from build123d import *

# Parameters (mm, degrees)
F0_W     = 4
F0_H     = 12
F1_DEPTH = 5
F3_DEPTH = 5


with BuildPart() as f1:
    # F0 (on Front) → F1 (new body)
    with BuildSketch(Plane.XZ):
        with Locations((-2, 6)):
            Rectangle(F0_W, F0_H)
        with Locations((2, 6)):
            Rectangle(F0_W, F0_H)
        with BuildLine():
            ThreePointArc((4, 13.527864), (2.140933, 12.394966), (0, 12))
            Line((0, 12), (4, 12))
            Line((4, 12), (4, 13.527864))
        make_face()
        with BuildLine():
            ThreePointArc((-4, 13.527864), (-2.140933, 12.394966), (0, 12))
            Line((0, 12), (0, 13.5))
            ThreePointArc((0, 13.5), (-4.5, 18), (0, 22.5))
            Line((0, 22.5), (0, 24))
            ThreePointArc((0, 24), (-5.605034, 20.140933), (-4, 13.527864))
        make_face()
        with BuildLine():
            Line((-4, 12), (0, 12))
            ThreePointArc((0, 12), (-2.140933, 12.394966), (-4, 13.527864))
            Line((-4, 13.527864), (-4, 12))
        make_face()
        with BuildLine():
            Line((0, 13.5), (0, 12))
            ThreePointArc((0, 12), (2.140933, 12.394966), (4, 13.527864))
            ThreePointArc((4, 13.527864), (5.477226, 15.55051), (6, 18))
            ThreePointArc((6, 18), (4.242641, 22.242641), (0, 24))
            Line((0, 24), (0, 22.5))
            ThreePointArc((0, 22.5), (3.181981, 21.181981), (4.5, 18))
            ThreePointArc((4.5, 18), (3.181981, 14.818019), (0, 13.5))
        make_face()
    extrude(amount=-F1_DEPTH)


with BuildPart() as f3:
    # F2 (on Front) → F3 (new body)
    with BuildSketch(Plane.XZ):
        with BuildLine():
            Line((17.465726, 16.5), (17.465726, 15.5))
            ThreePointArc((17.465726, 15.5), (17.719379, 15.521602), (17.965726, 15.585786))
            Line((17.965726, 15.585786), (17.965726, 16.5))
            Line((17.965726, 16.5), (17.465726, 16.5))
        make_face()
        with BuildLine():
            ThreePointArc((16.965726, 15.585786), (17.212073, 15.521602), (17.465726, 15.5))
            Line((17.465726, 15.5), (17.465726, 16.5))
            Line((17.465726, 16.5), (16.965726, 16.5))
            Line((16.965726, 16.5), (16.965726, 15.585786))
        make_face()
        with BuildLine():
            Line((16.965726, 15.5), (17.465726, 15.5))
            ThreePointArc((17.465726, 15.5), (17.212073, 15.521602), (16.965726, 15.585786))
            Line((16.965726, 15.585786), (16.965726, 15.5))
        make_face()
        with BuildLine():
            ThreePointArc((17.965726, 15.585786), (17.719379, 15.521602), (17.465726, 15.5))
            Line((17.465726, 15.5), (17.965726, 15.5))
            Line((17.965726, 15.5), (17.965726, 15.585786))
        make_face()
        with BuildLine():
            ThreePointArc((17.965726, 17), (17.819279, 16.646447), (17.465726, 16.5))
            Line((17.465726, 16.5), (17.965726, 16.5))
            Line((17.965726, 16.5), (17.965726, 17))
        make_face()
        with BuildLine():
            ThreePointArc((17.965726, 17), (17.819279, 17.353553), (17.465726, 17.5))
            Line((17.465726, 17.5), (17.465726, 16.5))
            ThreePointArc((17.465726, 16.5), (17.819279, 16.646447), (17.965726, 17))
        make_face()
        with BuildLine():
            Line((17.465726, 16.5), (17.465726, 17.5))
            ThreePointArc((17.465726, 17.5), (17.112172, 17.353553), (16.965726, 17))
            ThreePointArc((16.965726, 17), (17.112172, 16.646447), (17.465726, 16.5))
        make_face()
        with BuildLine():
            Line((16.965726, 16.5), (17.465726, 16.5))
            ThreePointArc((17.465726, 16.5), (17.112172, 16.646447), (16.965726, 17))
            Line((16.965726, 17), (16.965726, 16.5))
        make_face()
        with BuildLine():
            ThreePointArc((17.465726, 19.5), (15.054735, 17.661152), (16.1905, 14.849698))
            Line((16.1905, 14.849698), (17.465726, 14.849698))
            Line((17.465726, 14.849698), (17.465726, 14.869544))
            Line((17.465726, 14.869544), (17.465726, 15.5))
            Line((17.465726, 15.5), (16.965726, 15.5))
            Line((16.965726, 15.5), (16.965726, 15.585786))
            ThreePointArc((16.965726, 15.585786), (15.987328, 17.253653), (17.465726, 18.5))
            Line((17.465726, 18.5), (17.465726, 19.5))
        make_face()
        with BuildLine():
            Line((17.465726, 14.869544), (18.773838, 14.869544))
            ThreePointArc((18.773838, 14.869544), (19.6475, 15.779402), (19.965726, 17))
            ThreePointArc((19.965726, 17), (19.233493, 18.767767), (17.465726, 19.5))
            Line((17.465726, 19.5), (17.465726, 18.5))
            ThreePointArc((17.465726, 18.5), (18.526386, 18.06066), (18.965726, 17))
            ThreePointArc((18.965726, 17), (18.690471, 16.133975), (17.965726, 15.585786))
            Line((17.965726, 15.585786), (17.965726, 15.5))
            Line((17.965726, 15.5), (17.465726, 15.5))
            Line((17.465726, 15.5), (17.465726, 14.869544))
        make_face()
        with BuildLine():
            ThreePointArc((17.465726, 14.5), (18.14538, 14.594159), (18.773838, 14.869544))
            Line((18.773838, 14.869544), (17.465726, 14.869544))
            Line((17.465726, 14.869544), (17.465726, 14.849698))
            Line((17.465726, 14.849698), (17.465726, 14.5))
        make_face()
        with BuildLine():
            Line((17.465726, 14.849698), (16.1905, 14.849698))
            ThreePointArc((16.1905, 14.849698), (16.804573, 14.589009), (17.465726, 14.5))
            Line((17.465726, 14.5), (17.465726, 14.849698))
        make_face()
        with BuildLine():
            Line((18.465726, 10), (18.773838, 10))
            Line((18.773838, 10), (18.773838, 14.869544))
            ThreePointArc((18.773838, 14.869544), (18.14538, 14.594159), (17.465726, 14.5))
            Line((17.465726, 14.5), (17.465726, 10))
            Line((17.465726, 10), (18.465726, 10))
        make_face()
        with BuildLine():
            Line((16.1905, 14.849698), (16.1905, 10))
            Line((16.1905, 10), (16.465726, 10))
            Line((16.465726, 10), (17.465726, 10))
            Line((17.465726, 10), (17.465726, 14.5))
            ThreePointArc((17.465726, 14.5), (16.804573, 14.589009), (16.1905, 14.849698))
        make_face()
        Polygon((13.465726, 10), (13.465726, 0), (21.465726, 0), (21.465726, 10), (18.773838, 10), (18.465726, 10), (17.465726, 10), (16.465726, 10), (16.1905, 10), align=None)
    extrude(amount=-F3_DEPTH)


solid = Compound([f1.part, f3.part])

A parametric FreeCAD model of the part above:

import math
import FreeCAD as App
import Part
import Sketcher

V = App.Vector

doc = App.newDocument("Part")
body = doc.addObject("PartDesign::Body", "Body")

sketch1 = body.newObject("Sketcher::SketchObject", "Sketch")
sketch1.AttachmentSupport = (doc.getObject("XZ_Plane"), [""])
sketch1.MapMode = "FlatFace"
sketch1.addGeometry(Part.LineSegment(V(-4, 0, 0), V(4, 0, 0)), False)
sketch1.addGeometry(Part.LineSegment(V(4, 0, 0), V(4, 13.5, 0)), False)
sketch1.addGeometry(Part.ArcOfCircle(Part.Circle(V(0, 18, 0), V(0, 0, 1), 6), math.radians(-48), math.radians(0)), False)
sketch1.addGeometry(Part.ArcOfCircle(Part.Circle(V(0, 18, 0), V(0, 0, 1), 6), math.radians(0), math.radians(90)), False)
sketch1.addGeometry(Part.ArcOfCircle(Part.Circle(V(0, 18, 0), V(0, 0, 1), 6), math.radians(90), math.radians(228)), False)
sketch1.addGeometry(Part.LineSegment(V(-4, 13.5, 0), V(-4, 0, 0)), False)
sketch1.addGeometry(Part.ArcOfCircle(Part.Circle(V(0, 18, 0), V(0, 0, 1), 4.5), math.radians(90), math.radians(270)), False)
sketch1.addGeometry(Part.ArcOfCircle(Part.Circle(V(0, 18, 0), V(0, 0, 1), 4.5), math.radians(0), math.radians(90)), False)
sketch1.addGeometry(Part.ArcOfCircle(Part.Circle(V(0, 18, 0), V(0, 0, 1), 4.5), math.radians(-90), math.radians(0)), False)
sketch1.addConstraint(Sketcher.Constraint("Coincident", 0, 2, 1, 1))
sketch1.addConstraint(Sketcher.Constraint("Coincident", 1, 2, 2, 1))
sketch1.addConstraint(Sketcher.Constraint("Tangent", 2, 2, 3, 1))
sketch1.addConstraint(Sketcher.Constraint("Tangent", 3, 2, 4, 1))
sketch1.addConstraint(Sketcher.Constraint("Coincident", 4, 2, 5, 1))
sketch1.addConstraint(Sketcher.Constraint("Coincident", 5, 2, 0, 1))
sketch1.addConstraint(Sketcher.Constraint("Tangent", 6, 1, 7, 2))
sketch1.addConstraint(Sketcher.Constraint("Tangent", 7, 1, 8, 2))
sketch1.addConstraint(Sketcher.Constraint("Tangent", 8, 1, 6, 2))
sketch1.addConstraint(Sketcher.Constraint("Horizontal", 0))
sketch1.addConstraint(Sketcher.Constraint("Vertical", 1))
sketch1.addConstraint(Sketcher.Constraint("Vertical", 5))
sketch1.addConstraint(Sketcher.Constraint("Coincident", 4, 3, 2, 3))
sketch1.addConstraint(Sketcher.Constraint("Coincident", 6, 3, 2, 3))
sketch1.addConstraint(Sketcher.Constraint("Symmetric", 0, 2, 5, 2, -1, 1))
sketch1.addConstraint(Sketcher.Constraint("PointOnObject", 3, 3, -2))
sketch1.addConstraint(Sketcher.Constraint("PointOnObject", 3, 2, -2))
sketch1.addConstraint(Sketcher.Constraint("PointOnObject", 6, 1, -2))
sketch1.addConstraint(Sketcher.Constraint("PointOnObject", 8, 1, -2))
sketch1.addConstraint(Sketcher.Constraint("Horizontal", 8, 3, 2, 2))
sketch1.addConstraint(Sketcher.Constraint("Horizontal", 2, 2, 7, 1))
sketch1.addConstraint(Sketcher.Constraint("Radius", 3, 5.999999))
sketch1.addConstraint(Sketcher.Constraint("Radius", 6, 4.5))
sketch1.addConstraint(Sketcher.Constraint("DistanceX", 0, 1, 0, 2, 8.0))
sketch1.addConstraint(Sketcher.Constraint("DistanceY", -1, 1, 3, 3, 18.000001))
pad1 = body.newObject("PartDesign::Pad", "Pad")
pad1.Profile = sketch1
pad1.Length = 5
pad1.Reversed = True
body2 = doc.addObject("PartDesign::Body", "Body001")

sketch2 = body2.newObject("Sketcher::SketchObject", "Sketch001")
sketch2.AttachmentSupport = (doc.getObject("XZ_Plane001"), [""])
sketch2.MapMode = "FlatFace"
sketch2.addGeometry(Part.ArcOfCircle(Part.Circle(V(17.47, 17, 0), V(0, 0, 1), 2.5), math.radians(90), math.radians(239)), False)
sketch2.addGeometry(Part.LineSegment(V(16.19, 14.85, 0), V(16.19, 10, 0)), False)
sketch2.addGeometry(Part.LineSegment(V(16.19, 10, 0), V(13.47, 10, 0)), False)
sketch2.addGeometry(Part.LineSegment(V(13.47, 10, 0), V(13.47, 0, 0)), False)
sketch2.addGeometry(Part.LineSegment(V(13.47, 0, 0), V(21.47, 0, 0)), False)
sketch2.addGeometry(Part.LineSegment(V(21.47, 0, 0), V(21.47, 10, 0)), False)
sketch2.addGeometry(Part.LineSegment(V(21.47, 10, 0), V(18.77, 10, 0)), False)
sketch2.addGeometry(Part.LineSegment(V(18.77, 10, 0), V(18.77, 14.87, 0)), False)
sketch2.addGeometry(Part.ArcOfCircle(Part.Circle(V(17.47, 17, 0), V(0, 0, 1), 2.5), math.radians(-58), math.radians(0)), False)
sketch2.addGeometry(Part.ArcOfCircle(Part.Circle(V(17.47, 17, 0), V(0, 0, 1), 2.5), math.radians(0), math.radians(90)), False)
sketch2.addGeometry(Part.LineSegment(V(17.97, 15.59, 0), V(17.97, 17, 0)), False)
sketch2.addGeometry(Part.ArcOfCircle(Part.Circle(V(17.47, 17, 0), V(0, 0, 1), 0.5), math.radians(0), math.radians(90)), False)
sketch2.addGeometry(Part.ArcOfCircle(Part.Circle(V(17.47, 17, 0), V(0, 0, 1), 0.5), math.radians(90), math.radians(180)), False)
sketch2.addGeometry(Part.LineSegment(V(16.97, 17, 0), V(16.97, 15.59, 0)), False)
sketch2.addGeometry(Part.ArcOfCircle(Part.Circle(V(17.47, 17, 0), V(0, 0, 1), 1.5), math.radians(90), math.radians(251)), False)
sketch2.addGeometry(Part.ArcOfCircle(Part.Circle(V(17.47, 17, 0), V(0, 0, 1), 1.5), math.radians(0), math.radians(90)), False)
sketch2.addGeometry(Part.ArcOfCircle(Part.Circle(V(17.47, 17, 0), V(0, 0, 1), 1.5), math.radians(-71), math.radians(0)), False)
sketch2.addConstraint(Sketcher.Constraint("Coincident", 0, 2, 1, 1))
sketch2.addConstraint(Sketcher.Constraint("Coincident", 1, 2, 2, 1))
sketch2.addConstraint(Sketcher.Constraint("Coincident", 2, 2, 3, 1))
sketch2.addConstraint(Sketcher.Constraint("Coincident", 3, 2, 4, 1))
sketch2.addConstraint(Sketcher.Constraint("Coincident", 4, 2, 5, 1))
sketch2.addConstraint(Sketcher.Constraint("Coincident", 5, 2, 6, 1))
sketch2.addConstraint(Sketcher.Constraint("Coincident", 6, 2, 7, 1))
sketch2.addConstraint(Sketcher.Constraint("Coincident", 7, 2, 8, 1))
sketch2.addConstraint(Sketcher.Constraint("Tangent", 8, 2, 9, 1))
sketch2.addConstraint(Sketcher.Constraint("Tangent", 9, 2, 0, 1))
sketch2.addConstraint(Sketcher.Constraint("Coincident", 10, 2, 11, 1))
sketch2.addConstraint(Sketcher.Constraint("Tangent", 11, 2, 12, 1))
sketch2.addConstraint(Sketcher.Constraint("Tangent", 12, 2, 13, 1))
sketch2.addConstraint(Sketcher.Constraint("Coincident", 13, 2, 14, 2))
sketch2.addConstraint(Sketcher.Constraint("Tangent", 14, 1, 15, 2))
sketch2.addConstraint(Sketcher.Constraint("Tangent", 15, 1, 16, 2))
sketch2.addConstraint(Sketcher.Constraint("Coincident", 16, 1, 10, 1))
sketch2.addConstraint(Sketcher.Constraint("Vertical", 1))
sketch2.addConstraint(Sketcher.Constraint("Horizontal", 2))
sketch2.addConstraint(Sketcher.Constraint("Vertical", 3))
sketch2.addConstraint(Sketcher.Constraint("Horizontal", 4))
sketch2.addConstraint(Sketcher.Constraint("Vertical", 5))
sketch2.addConstraint(Sketcher.Constraint("Horizontal", 6))
sketch2.addConstraint(Sketcher.Constraint("Vertical", 7))
sketch2.addConstraint(Sketcher.Constraint("Vertical", 10))
sketch2.addConstraint(Sketcher.Constraint("Vertical", 13))
sketch2.addConstraint(Sketcher.Constraint("Coincident", 8, 3, 0, 3))
sketch2.addConstraint(Sketcher.Constraint("Coincident", 11, 3, 0, 3))
sketch2.addConstraint(Sketcher.Constraint("Coincident", 14, 3, 0, 3))
sketch2.addConstraint(Sketcher.Constraint("Coincident", 16, 3, 0, 3))
sketch2.addConstraint(Sketcher.Constraint("Equal", 11, 12))
sketch2.addConstraint(Sketcher.Constraint("PointOnObject", 3, 2, -1))
sketch2.addConstraint(Sketcher.Constraint("Horizontal", 2, 2, 5, 2))
sketch2.addConstraint(Sketcher.Constraint("Horizontal", 16, 3, 8, 2))
sketch2.addConstraint(Sketcher.Constraint("Horizontal", 8, 2, 10, 2))
sketch2.addConstraint(Sketcher.Constraint("Horizontal", 12, 2, 15, 1))
sketch2.addConstraint(Sketcher.Constraint("Vertical", 16, 3, 9, 2))
sketch2.addConstraint(Sketcher.Constraint("Vertical", 9, 2, 11, 2))
sketch2.addConstraint(Sketcher.Constraint("Vertical", 11, 2, 14, 1))
sketch2.addConstraint(Sketcher.Constraint("Radius", 0, 2.5))
sketch2.addConstraint(Sketcher.Constraint("Radius", 11, 0.500001))
sketch2.addConstraint(Sketcher.Constraint("Radius", 14, 1.5))
sketch2.addConstraint(Sketcher.Constraint("DistanceX", 4, 1, 4, 2, 8.0))
sketch2.addConstraint(Sketcher.Constraint("DistanceY", 3, 2, 3, 1, 10.0))
sketch2.addConstraint(Sketcher.Constraint("DistanceY", -1, 1, 0, 3, 17.0))
sketch2.addConstraint(Sketcher.Constraint("DistanceX", 2, 2, 11, 3, 3.999999))
sketch2.addConstraint(Sketcher.Constraint("DistanceX", -1, 1, 0, 2, 16.1905))
sketch2.addConstraint(Sketcher.Constraint("DistanceY", 0, 2, 11, 3, 2.150301))
sketch2.addConstraint(Sketcher.Constraint("DistanceX", 6, 2, 6, 1, 2.691888))
pad2 = body2.newObject("PartDesign::Pad", "Pad001")
pad2.Profile = sketch2
pad2.Length = 5
pad2.Reversed = True

doc.recompute()
